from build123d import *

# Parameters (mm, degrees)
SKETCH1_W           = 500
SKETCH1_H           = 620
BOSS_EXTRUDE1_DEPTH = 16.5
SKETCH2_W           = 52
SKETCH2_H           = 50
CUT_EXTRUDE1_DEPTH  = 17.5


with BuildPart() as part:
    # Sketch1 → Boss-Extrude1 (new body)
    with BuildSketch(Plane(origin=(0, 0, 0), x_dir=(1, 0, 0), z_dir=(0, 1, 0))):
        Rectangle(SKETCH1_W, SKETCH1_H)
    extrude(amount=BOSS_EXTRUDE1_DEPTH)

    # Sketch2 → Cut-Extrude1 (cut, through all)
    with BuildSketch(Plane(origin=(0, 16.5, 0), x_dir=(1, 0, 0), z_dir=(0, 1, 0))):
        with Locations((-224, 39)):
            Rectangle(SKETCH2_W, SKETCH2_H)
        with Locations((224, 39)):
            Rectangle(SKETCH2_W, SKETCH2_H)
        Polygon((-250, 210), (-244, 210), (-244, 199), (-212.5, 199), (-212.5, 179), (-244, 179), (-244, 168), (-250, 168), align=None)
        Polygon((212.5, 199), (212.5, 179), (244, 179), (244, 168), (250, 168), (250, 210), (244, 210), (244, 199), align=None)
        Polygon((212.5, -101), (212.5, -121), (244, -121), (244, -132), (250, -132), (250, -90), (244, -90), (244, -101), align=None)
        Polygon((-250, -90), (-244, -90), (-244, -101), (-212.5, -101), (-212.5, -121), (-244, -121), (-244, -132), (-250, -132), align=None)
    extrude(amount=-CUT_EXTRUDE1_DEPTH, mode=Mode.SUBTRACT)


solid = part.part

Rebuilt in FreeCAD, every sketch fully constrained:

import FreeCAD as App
import Part
import Sketcher
from FreeCAD import Vector

doc = App.newDocument("Part")
body = doc.addObject("PartDesign::Body", "Body")

# Sketch on XZ plane
sketch1 = doc.addObject("Sketcher::SketchObject", "Sketch")
body.addObject(sketch1)
sketch1.AttachmentSupport = (doc.XZ_Plane, [""])
sketch1.MapMode = "FlatFace"
sketch1.addGeometry(Part.LineSegment(Vector(-250, -310, 0), Vector(-250, 310, 0)), False)
sketch1.addGeometry(Part.LineSegment(Vector(-250, 310, 0), Vector(250, 310, 0)), False)
sketch1.addGeometry(Part.LineSegment(Vector(250, 310, 0), Vector(250, -310, 0)), False)
sketch1.addGeometry(Part.LineSegment(Vector(250, -310, 0), Vector(-250, -310, 0)), False)
sketch1.addConstraint(Sketcher.Constraint("Coincident", 0, 2, 1, 1))
sketch1.addConstraint(Sketcher.Constraint("Coincident", 1, 2, 2, 1))
sketch1.addConstraint(Sketcher.Constraint("Coincident", 2, 2, 3, 1))
sketch1.addConstraint(Sketcher.Constraint("Coincident", 3, 2, 0, 1))
sketch1.addConstraint(Sketcher.Constraint("Vertical", 0))
sketch1.addConstraint(Sketcher.Constraint("Horizontal", 1))
sketch1.addConstraint(Sketcher.Constraint("Vertical", 2))
sketch1.addConstraint(Sketcher.Constraint("Horizontal", 3))
sketch1.addConstraint(Sketcher.Constraint("Symmetric", 0, 2, 2, 2, -1, 1))
sketch1.addConstraint(Sketcher.Constraint("DistanceX", 1, 1, 1, 2, 500.0))
sketch1.addConstraint(Sketcher.Constraint("DistanceY", 0, 1, 0, 2, 620.0))
pad1 = doc.addObject("PartDesign::Pad", "Pad")
body.addObject(pad1)
pad1.Profile = sketch1
pad1.Length = 16.5
pad1.Reversed = True

# Sketch on XZ plane
sketch2 = doc.addObject("Sketcher::SketchObject", "Sketch001")
body.addObject(sketch2)
sketch2.AttachmentSupport = (doc.XZ_Plane, [""])
sketch2.MapMode = "FlatFace"
sketch2.AttachmentOffset = App.Placement(Vector(0, 0, -16.5), App.Rotation())
sketch2.addGeometry(Part.LineSegment(Vector(-250, -64, 0), Vector(-250, -14, 0)), False)
sketch2.addGeometry(Part.LineSegment(Vector(-250, -14, 0), Vector(-198, -14, 0)), False)
sketch2.addGeometry(Part.LineSegment(Vector(-198, -14, 0), Vector(-198, -64, 0)), False)
sketch2.addGeometry(Part.LineSegment(Vector(-198, -64, 0), Vector(-250, -64, 0)), False)
sketch2.addGeometry(Part.LineSegment(Vector(198, -64, 0), Vector(198, -14, 0)), False)
sketch2.addGeometry(Part.LineSegment(Vector(198, -14, 0), Vector(250, -14, 0)), False)
sketch2.addGeometry(Part.LineSegment(Vector(250, -14, 0), Vector(250, -64, 0)), False)
sketch2.addGeometry(Part.LineSegment(Vector(250, -64, 0), Vector(198, -64, 0)), False)
sketch2.addGeometry(Part.LineSegment(Vector(-244, -210, 0), Vector(-250, -210, 0)), False)
sketch2.addGeometry(Part.LineSegment(Vector(-250, -210, 0), Vector(-250, -168, 0)), False)
sketch2.addGeometry(Part.LineSegment(Vector(-250, -168, 0), Vector(-244, -168, 0)), False)
sketch2.addGeometry(Part.LineSegment(Vector(-244, -168, 0), Vector(-244, -179, 0)), False)
sketch2.addGeometry(Part.LineSegment(Vector(-244, -179, 0), Vector(-212, -179, 0)), False)
sketch2.addGeometry(Part.LineSegment(Vector(-212, -179, 0), Vector(-212, -199, 0)), False)
sketch2.addGeometry(Part.LineSegment(Vector(-212, -199, 0), Vector(-244, -199, 0)), False)
sketch2.addGeometry(Part.LineSegment(Vector(-244, -199, 0), Vector(-244, -210, 0)), False)
sketch2.addGeometry(Part.LineSegment(Vector(212, -199, 0), Vector(212, -179, 0)), False)
sketch2.addGeometry(Part.LineSegment(Vector(212, -179, 0), Vector(244, -179, 0)), False)
sketch2.addGeometry(Part.LineSegment(Vector(244, -179, 0), Vector(244, -168, 0)), False)
sketch2.addGeometry(Part.LineSegment(Vector(244, -168, 0), Vector(250, -168, 0)), False)
sketch2.addGeometry(Part.LineSegment(Vector(250, -168, 0), Vector(250, -210, 0)), False)
sketch2.addGeometry(Part.LineSegment(Vector(250, -210, 0), Vector(244, -210, 0)), False)
sketch2.addGeometry(Part.LineSegment(Vector(244, -210, 0), Vector(244, -199, 0)), False)
sketch2.addGeometry(Part.LineSegment(Vector(244, -199, 0), Vector(212, -199, 0)), False)
sketch2.addGeometry(Part.LineSegment(Vector(212, 101, 0), Vector(212, 121, 0)), False)
sketch2.addGeometry(Part.LineSegment(Vector(212, 121, 0), Vector(244, 121, 0)), False)
sketch2.addGeometry(Part.LineSegment(Vector(244, 121, 0), Vector(244, 132, 0)), False)
sketch2.addGeometry(Part.LineSegment(Vector(244, 132, 0), Vector(250, 132, 0)), False)
sketch2.addGeometry(Part.LineSegment(Vector(250, 132, 0), Vector(250, 90, 0)), False)
sketch2.addGeometry(Part.LineSegment(Vector(250, 90, 0), Vector(244, 90, 0)), False)
sketch2.addGeometry(Part.LineSegment(Vector(244, 90, 0), Vector(244, 101, 0)), False)
sketch2.addGeometry(Part.LineSegment(Vector(244, 101, 0), Vector(212, 101, 0)), False)
sketch2.addGeometry(Part.LineSegment(Vector(-244, 90, 0), Vector(-250, 90, 0)), False)
sketch2.addGeometry(Part.LineSegment(Vector(-250, 90, 0), Vector(-250, 132, 0)), False)
sketch2.addGeometry(Part.LineSegment(Vector(-250, 132, 0), Vector(-244, 132, 0)), False)
sketch2.addGeometry(Part.LineSegment(Vector(-244, 132, 0), Vector(-244, 121, 0)), False)
sketch2.addGeometry(Part.LineSegment(Vector(-244, 121, 0), Vector(-212, 121, 0)), False)
sketch2.addGeometry(Part.LineSegment(Vector(-212, 121, 0), Vector(-212, 101, 0)), False)
sketch2.addGeometry(Part.LineSegment(Vector(-212, 101, 0), Vector(-244, 101, 0)), False)
sketch2.addGeometry(Part.LineSegment(Vector(-244, 101, 0), Vector(-244, 90, 0)), False)
sketch2.addConstraint(Sketcher.Constraint("Coincident", 0, 2, 1, 1))
sketch2.addConstraint(Sketcher.Constraint("Coincident", 1, 2, 2, 1))
sketch2.addConstraint(Sketcher.Constraint("Coincident", 2, 2, 3, 1))
sketch2.addConstraint(Sketcher.Constraint("Coincident", 3, 2, 0, 1))
sketch2.addConstraint(Sketcher.Constraint("Coincident", 4, 2, 5, 1))
sketch2.addConstraint(Sketcher.Constraint("Coincident", 5, 2, 6, 1))
sketch2.addConstraint(Sketcher.Constraint("Coincident", 6, 2, 7, 1))
sketch2.addConstraint(Sketcher.Constraint("Coincident", 7, 2, 4, 1))
sketch2.addConstraint(Sketcher.Constraint("Coincident", 8, 2, 9, 1))
sketch2.addConstraint(Sketcher.Constraint("Coincident", 9, 2, 10, 1))
sketch2.addConstraint(Sketcher.Constraint("Coincident", 10, 2, 11, 1))
sketch2.addConstraint(Sketcher.Constraint("Coincident", 11, 2, 12, 1))
sketch2.addConstraint(Sketcher.Constraint("Coincident", 12, 2, 13, 1))
sketch2.addConstraint(Sketcher.Constraint("Coincident", 13, 2, 14, 1))
sketch2.addConstraint(Sketcher.Constraint("Coincident", 14, 2, 15, 1))
sketch2.addConstraint(Sketcher.Constraint("Coincident", 15, 2, 8, 1))
sketch2.addConstraint(Sketcher.Constraint("Coincident", 16, 2, 17, 1))
sketch2.addConstraint(Sketcher.Constraint("Coincident", 17, 2, 18, 1))
sketch2.addConstraint(Sketcher.Constraint("Coincident", 18, 2, 19, 1))
sketch2.addConstraint(Sketcher.Constraint("Coincident", 19, 2, 20, 1))
sketch2.addConstraint(Sketcher.Constraint("Coincident", 20, 2, 21, 1))
sketch2.addConstraint(Sketcher.Constraint("Coincident", 21, 2, 22, 1))
sketch2.addConstraint(Sketcher.Constraint("Coincident", 22, 2, 23, 1))
sketch2.addConstraint(Sketcher.Constraint("Coincident", 23, 2, 16, 1))
sketch2.addConstraint(Sketcher.Constraint("Coincident", 24, 2, 25, 1))
sketch2.addConstraint(Sketcher.Constraint("Coincident", 25, 2, 26, 1))
sketch2.addConstraint(Sketcher.Constraint("Coincident", 26, 2, 27, 1))
sketch2.addConstraint(Sketcher.Constraint("Coincident", 27, 2, 28, 1))
sketch2.addConstraint(Sketcher.Constraint("Coincident", 28, 2, 29, 1))
sketch2.addConstraint(Sketcher.Constraint("Coincident", 29, 2, 30, 1))
sketch2.addConstraint(Sketcher.Constraint("Coincident", 30, 2, 31, 1))
sketch2.addConstraint(Sketcher.Constraint("Coincident", 31, 2, 24, 1))
sketch2.addConstraint(Sketcher.Constraint("Coincident", 32, 2, 33, 1))
sketch2.addConstraint(Sketcher.Constraint("Coincident", 33, 2, 34, 1))
sketch2.addConstraint(Sketcher.Constraint("Coincident", 34, 2, 35, 1))
sketch2.addConstraint(Sketcher.Constraint("Coincident", 35, 2, 36, 1))
sketch2.addConstraint(Sketcher.Constraint("Coincident", 36, 2, 37, 1))
sketch2.addConstraint(Sketcher.Constraint("Coincident", 37, 2, 38, 1))
sketch2.addConstraint(Sketcher.Constraint("Coincident", 38, 2, 39, 1))
sketch2.addConstraint(Sketcher.Constraint("Coincident", 39, 2, 32, 1))
sketch2.addConstraint(Sketcher.Constraint("Vertical", 0))
sketch2.addConstraint(Sketcher.Constraint("Horizontal", 1))
sketch2.addConstraint(Sketcher.Constraint("Vertical", 2))
sketch2.addConstraint(Sketcher.Constraint("Horizontal", 3))
sketch2.addConstraint(Sketcher.Constraint("Vertical", 4))
sketch2.addConstraint(Sketcher.Constraint("Horizontal", 5))
sketch2.addConstraint(Sketcher.Constraint("Vertical", 6))
sketch2.addConstraint(Sketcher.Constraint("Horizontal", 7))
sketch2.addConstraint(Sketcher.Constraint("Horizontal", 8))
sketch2.addConstraint(Sketcher.Constraint("Vertical", 9))
sketch2.addConstraint(Sketcher.Constraint("Horizontal", 10))
sketch2.addConstraint(Sketcher.Constraint("Vertical", 11))
sketch2.addConstraint(Sketcher.Constraint("Horizontal", 12))
sketch2.addConstraint(Sketcher.Constraint("Vertical", 13))
sketch2.addConstraint(Sketcher.Constraint("Horizontal", 14))
sketch2.addConstraint(Sketcher.Constraint("Vertical", 15))
sketch2.addConstraint(Sketcher.Constraint("Vertical", 16))
sketch2.addConstraint(Sketcher.Constraint("Horizontal", 17))
sketch2.addConstraint(Sketcher.Constraint("Vertical", 18))
sketch2.addConstraint(Sketcher.Constraint("Horizontal", 19))
sketch2.addConstraint(Sketcher.Constraint("Vertical", 20))
sketch2.addConstraint(Sketcher.Constraint("Horizontal", 21))
sketch2.addConstraint(Sketcher.Constraint("Vertical", 22))
sketch2.addConstraint(Sketcher.Constraint("Horizontal", 23))
sketch2.addConstraint(Sketcher.Constraint("Vertical", 24))
sketch2.addConstraint(Sketcher.Constraint("Horizontal", 25))
sketch2.addConstraint(Sketcher.Constraint("Vertical", 26))
sketch2.addConstraint(Sketcher.Constraint("Horizontal", 27))
sketch2.addConstraint(Sketcher.Constraint("Vertical", 28))
sketch2.addConstraint(Sketcher.Constraint("Horizontal", 29))
sketch2.addConstraint(Sketcher.Constraint("Vertical", 30))
sketch2.addConstraint(Sketcher.Constraint("Horizontal", 31))
sketch2.addConstraint(Sketcher.Constraint("Horizontal", 32))
sketch2.addConstraint(Sketcher.Constraint("Vertical", 33))
sketch2.addConstraint(Sketcher.Constraint("Horizontal", 34))
sketch2.addConstraint(Sketcher.Constraint("Vertical", 35))
sketch2.addConstraint(Sketcher.Constraint("Horizontal", 36))
sketch2.addConstraint(Sketcher.Constraint("Vertical", 37))
sketch2.addConstraint(Sketcher.Constraint("Horizontal", 38))
sketch2.addConstraint(Sketcher.Constraint("Vertical", 39))
sketch2.addConstraint(Sketcher.Constraint("Symmetric", 1, 2, 4, 2, -2))
sketch2.addConstraint(Sketcher.Constraint("Symmetric", 3, 2, 6, 2, -2))
sketch2.addConstraint(Sketcher.Constraint("Symmetric", 12, 2, 16, 2, -2))
sketch2.addConstraint(Sketcher.Constraint("Symmetric", 10, 2, 18, 2, -2))
sketch2.addConstraint(Sketcher.Constraint("Symmetric", 8, 2, 20, 2, -2))
sketch2.addConstraint(Sketcher.Constraint("Symmetric", 14, 2, 22, 2, -2))
sketch2.addConstraint(Sketcher.Constraint("Symmetric", 28, 2, 32, 2, -2))
sketch2.addConstraint(Sketcher.Constraint("Symmetric", 26, 2, 34, 2, -2))
sketch2.addConstraint(Sketcher.Constraint("Symmetric", 24, 2, 36, 2, -2))
sketch2.addConstraint(Sketcher.Constraint("Symmetric", 30, 2, 38, 2, -2))
sketch2.addConstraint(Sketcher.Constraint("Vertical", 3, 2, 8, 2))
sketch2.addConstraint(Sketcher.Constraint("Vertical", 11, 2, 14, 2))
sketch2.addConstraint(Sketcher.Constraint("Vertical", 23, 2, 24, 2))
sketch2.addConstraint(Sketcher.Constraint("Vertical", 22, 2, 25, 2))
sketch2.addConstraint(Sketcher.Constraint("Vertical", 20, 2, 27, 2))
sketch2.addConstraint(Sketcher.Constraint("Vertical", 26, 2, 29, 2))
sketch2.addConstraint(Sketcher.Constraint("Equal", 11, 15))
sketch2.addConstraint(Sketcher.Constraint("Equal", 16, 24))
sketch2.addConstraint(Sketcher.Constraint("Equal", 22, 26))
sketch2.addConstraint(Sketcher.Constraint("Equal", 20, 28))
sketch2.addConstraint(Sketcher.Constraint("DistanceX", 1, 1, 1, 2, 52.0))
sketch2.addConstraint(Sketcher.Constraint("DistanceX", 8, 2, 8, 1, 6.0))
sketch2.addConstraint(Sketcher.Constraint("DistanceY", 0, 1, 0, 2, 50.0))
sketch2.addConstraint(Sketcher.Constraint("DistanceY", 9, 1, 9, 2, 42.0))
sketch2.addConstraint(Sketcher.Constraint("DistanceY", 11, 2, 11, 1, 11.0))
sketch2.addConstraint(Sketcher.Constraint("DistanceX", 12, 1, 12, 2, 31.5))
sketch2.addConstraint(Sketcher.Constraint("DistanceX", 0, 2, -1, 1, 250.0))
sketch2.addConstraint(Sketcher.Constraint("DistanceY", 0, 2, -1, 1, 14.0))
sketch2.addConstraint(Sketcher.Constraint("DistanceY", 8, 2, -1, 1, 210.0))
sketch2.addConstraint(Sketcher.Constraint("DistanceY", -1, 1, 24, 2, 121.0))
pocket1 = doc.addObject("PartDesign::Pocket", "Pocket")
body.addObject(pocket1)
pocket1.Profile = sketch2
pocket1.Type = "ThroughAll"
pocket1.Reversed = True

doc.recompute()
